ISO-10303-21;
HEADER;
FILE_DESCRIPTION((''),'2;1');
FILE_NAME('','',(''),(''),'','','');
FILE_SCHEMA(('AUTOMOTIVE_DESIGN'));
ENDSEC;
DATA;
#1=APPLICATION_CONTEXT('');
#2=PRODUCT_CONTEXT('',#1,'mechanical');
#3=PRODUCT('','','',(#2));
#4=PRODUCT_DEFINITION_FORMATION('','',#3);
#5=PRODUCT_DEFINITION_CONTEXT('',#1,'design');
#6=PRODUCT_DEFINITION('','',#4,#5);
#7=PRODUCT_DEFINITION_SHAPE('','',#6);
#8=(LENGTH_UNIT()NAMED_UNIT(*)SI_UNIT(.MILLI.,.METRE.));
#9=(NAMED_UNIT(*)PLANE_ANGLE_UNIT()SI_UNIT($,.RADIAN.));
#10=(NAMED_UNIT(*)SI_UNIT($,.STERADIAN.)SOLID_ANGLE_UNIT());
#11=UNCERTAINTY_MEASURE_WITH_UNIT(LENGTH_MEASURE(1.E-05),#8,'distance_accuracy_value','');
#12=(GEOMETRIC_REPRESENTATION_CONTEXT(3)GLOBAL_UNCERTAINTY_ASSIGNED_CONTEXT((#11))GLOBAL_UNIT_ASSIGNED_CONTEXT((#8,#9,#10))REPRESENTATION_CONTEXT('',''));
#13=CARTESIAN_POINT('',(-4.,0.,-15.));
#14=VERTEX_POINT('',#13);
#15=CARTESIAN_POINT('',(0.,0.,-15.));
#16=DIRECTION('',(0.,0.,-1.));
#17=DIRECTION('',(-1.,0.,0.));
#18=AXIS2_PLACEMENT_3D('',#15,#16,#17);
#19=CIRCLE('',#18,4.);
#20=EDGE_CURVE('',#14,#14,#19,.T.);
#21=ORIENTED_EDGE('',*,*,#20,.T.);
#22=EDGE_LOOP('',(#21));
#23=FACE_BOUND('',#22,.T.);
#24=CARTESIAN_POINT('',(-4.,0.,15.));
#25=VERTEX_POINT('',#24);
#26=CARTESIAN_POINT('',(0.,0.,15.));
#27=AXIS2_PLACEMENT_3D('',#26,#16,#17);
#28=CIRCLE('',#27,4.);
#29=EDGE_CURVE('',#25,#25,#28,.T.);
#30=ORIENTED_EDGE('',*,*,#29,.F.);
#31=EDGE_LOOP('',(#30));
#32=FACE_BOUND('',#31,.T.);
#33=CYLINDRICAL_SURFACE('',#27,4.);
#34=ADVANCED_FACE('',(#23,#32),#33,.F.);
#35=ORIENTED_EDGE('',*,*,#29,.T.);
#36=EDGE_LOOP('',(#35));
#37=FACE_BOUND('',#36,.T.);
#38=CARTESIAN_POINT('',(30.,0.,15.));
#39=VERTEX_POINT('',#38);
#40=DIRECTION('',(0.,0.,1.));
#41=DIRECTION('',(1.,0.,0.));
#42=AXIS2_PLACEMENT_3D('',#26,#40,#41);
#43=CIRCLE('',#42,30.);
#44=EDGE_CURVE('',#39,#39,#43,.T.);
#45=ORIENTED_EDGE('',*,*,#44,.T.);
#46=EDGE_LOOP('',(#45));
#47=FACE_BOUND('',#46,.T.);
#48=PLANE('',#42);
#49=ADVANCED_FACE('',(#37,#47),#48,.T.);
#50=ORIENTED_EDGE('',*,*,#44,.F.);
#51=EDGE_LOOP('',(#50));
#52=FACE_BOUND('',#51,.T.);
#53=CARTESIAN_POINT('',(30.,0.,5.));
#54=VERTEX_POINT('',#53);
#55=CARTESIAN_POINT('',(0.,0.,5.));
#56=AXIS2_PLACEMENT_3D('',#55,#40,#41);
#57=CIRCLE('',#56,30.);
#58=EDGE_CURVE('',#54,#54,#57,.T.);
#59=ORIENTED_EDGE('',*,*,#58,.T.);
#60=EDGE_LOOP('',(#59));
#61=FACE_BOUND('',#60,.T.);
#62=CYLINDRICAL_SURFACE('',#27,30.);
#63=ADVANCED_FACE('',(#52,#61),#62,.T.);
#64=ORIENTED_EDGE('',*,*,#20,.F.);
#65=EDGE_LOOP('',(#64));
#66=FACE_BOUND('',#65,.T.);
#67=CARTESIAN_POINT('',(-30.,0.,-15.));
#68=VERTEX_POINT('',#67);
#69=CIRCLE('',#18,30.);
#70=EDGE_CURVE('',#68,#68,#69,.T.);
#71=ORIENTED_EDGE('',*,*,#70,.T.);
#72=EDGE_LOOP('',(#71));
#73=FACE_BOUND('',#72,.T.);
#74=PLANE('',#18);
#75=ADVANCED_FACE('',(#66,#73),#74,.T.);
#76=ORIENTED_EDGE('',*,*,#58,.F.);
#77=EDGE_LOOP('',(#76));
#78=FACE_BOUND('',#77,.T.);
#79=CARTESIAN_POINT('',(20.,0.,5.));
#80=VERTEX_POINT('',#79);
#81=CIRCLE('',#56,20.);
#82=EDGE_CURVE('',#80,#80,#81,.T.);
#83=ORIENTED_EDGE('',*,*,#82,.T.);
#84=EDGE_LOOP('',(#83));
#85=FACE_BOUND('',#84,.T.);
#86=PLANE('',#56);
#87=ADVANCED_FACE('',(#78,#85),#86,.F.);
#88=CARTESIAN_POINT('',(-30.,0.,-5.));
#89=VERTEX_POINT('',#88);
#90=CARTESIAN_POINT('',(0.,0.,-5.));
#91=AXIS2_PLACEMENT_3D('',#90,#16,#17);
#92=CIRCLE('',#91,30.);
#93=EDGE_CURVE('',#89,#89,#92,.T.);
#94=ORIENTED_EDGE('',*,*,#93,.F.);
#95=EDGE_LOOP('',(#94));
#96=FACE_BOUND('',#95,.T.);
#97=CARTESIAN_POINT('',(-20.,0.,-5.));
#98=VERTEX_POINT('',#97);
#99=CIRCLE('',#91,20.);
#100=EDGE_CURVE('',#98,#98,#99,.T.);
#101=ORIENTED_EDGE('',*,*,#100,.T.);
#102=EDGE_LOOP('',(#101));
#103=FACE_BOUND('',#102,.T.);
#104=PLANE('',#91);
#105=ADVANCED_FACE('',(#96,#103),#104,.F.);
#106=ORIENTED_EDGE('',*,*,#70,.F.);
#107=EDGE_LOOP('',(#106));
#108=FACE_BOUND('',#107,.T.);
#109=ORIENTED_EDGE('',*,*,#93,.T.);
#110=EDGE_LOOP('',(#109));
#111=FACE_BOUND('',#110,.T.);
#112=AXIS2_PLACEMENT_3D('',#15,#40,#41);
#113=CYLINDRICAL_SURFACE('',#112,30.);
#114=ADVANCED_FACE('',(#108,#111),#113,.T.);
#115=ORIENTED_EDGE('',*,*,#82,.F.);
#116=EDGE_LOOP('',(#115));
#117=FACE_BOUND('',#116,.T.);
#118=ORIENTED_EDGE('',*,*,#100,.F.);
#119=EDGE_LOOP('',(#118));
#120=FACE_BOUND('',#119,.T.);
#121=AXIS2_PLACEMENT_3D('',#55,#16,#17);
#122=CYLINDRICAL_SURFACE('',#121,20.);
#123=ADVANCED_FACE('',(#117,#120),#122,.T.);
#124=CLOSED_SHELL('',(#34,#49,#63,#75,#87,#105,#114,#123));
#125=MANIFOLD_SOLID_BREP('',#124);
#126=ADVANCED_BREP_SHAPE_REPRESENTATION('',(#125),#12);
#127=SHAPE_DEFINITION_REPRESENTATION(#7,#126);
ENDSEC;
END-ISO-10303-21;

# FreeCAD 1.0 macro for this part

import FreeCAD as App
import Part
import Sketcher
from FreeCAD import Vector
Q = App.Units.Quantity

doc = App.newDocument("Part")
body = doc.addObject("PartDesign::Body", "Body")

sketch1 = body.newObject("Sketcher::SketchObject", "Sketch")
sketch1.AttachmentSupport = (doc.getObject("XY_Plane"), [""])
sketch1.MapMode = "FlatFace"
sketch1.addGeometry(Part.Circle(Vector(0, 0, 0), Vector(0, 0, 1), 20), False)
sketch1.addConstraint(Sketcher.Constraint("Coincident", 0, 3, -1, 1))
sketch1.addConstraint(Sketcher.Constraint("Diameter", 0, Q("40 mm")))
pad1 = body.newObject("PartDesign::Pad", "Pad")
pad1.Profile = sketch1
pad1.Length = 10
pad1.Midplane = True

sketch2 = body.newObject("Sketcher::SketchObject", "Sketch001")
sketch2.AttachmentSupport = (doc.getObject("XY_Plane"), [""])
sketch2.MapMode = "FlatFace"
sketch2.AttachmentOffset = App.Placement(Vector(0, 0, 5), App.Rotation())
sketch2.addGeometry(Part.Circle(Vector(0, 0, 0), Vector(0, 0, 1), 30), False)
sketch2.addConstraint(Sketcher.Constraint("Coincident", 0, 3, -1, 1))
sketch2.addConstraint(Sketcher.Constraint("Diameter", 0, Q("60 mm")))
pad2 = body.newObject("PartDesign::Pad", "Pad001")
pad2.Profile = sketch2
pad2.Length = 10

sketch3 = body.newObject("Sketcher::SketchObject", "Sketch002")
sketch3.AttachmentSupport = (doc.getObject("XY_Plane"), [""])
sketch3.MapMode = "FlatFace"
sketch3.AttachmentOffset = App.Placement(Vector(0, 0, -15), App.Rotation())
sketch3.addGeometry(Part.Circle(Vector(0, 0, 0), Vector(0, 0, 1), 30), False)
sketch3.addConstraint(Sketcher.Constraint("Coincident", 0, 3, -1, 1))
sketch3.addConstraint(Sketcher.Constraint("Diameter", 0, Q("60 mm")))
pad3 = body.newObject("PartDesign::Pad", "Pad002")
pad3.Profile = sketch3
pad3.Length = 10

sketch4 = body.newObject("Sketcher::SketchObject", "Sketch003")
sketch4.AttachmentSupport = (doc.getObject("XY_Plane"), [""])
sketch4.MapMode = "FlatFace"
sketch4.AttachmentOffset = App.Placement(Vector(0, 0, -15), App.Rotation())
sketch4.addGeometry(Part.Circle(Vector(0, 0, 0), Vector(0, 0, 1), 4), False)
sketch4.addConstraint(Sketcher.Constraint("Coincident", 0, 3, -1, 1))
sketch4.addConstraint(Sketcher.Constraint("Diameter", 0, Q("8 mm")))
pocket1 = body.newObject("PartDesign::Pocket", "Pocket")
pocket1.Profile = sketch4
pocket1.Length = 30
pocket1.Reversed = True

doc.recompute()
